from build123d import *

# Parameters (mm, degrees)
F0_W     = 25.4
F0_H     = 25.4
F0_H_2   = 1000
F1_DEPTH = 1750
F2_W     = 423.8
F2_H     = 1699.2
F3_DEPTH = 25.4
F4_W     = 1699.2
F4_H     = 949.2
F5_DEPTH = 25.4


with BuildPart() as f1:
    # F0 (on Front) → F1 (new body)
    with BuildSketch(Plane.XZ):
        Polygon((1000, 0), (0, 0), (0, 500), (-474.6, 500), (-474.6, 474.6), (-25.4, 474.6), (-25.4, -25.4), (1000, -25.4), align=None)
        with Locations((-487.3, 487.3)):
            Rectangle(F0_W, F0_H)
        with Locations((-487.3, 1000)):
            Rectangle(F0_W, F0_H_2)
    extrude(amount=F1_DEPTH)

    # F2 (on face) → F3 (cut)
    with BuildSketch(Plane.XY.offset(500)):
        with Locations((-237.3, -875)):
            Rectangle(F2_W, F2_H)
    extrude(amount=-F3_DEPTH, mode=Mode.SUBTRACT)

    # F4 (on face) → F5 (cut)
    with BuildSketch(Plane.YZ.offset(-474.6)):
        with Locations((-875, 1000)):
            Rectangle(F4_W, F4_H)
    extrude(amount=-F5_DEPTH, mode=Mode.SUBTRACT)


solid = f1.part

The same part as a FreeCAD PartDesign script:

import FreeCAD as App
import Part
import Sketcher

doc = App.newDocument("Part")
params = doc.addObject("Spreadsheet::Sheet", "Params")
for row, (alias, value) in enumerate([
    ("sketch1_width", "1000 mm"),
    ("sketch1_height", "500 mm"),
    ("sketch1_width2", "474.6 mm"),
    ("sketch1_width3", "25.4 mm"),
    ("pad1_length", "1750 mm"),
    ("sketch2_width", "423.8 mm"),
    ("sketch2_height", "1699.2 mm"),
    ("pocket1_length", "25.4 mm"),
    ("sketch3_width", "1699.2 mm"),
    ("sketch3_height", "949.2 mm"),
    ("pocket2_length", "25.4 mm"),
], start=1):
    params.set(f"A{row}", alias)
    params.set(f"B{row}", "=" + value)
    params.setAlias(f"B{row}", alias)

body = doc.addObject("PartDesign::Body", "Body")

sketch1 = body.newObject("Sketcher::SketchObject", "Sketch")
sketch1.AttachmentSupport = (doc.getObject("XZ_Plane"), [""])
sketch1.MapMode = "FlatFace"
sketch1.addGeometry([
    Part.LineSegment(App.Vector(1000, 0, 0), App.Vector(0, 0, 0)),
    Part.LineSegment(App.Vector(0, 0, 0), App.Vector(0, 500, 0)),
    Part.LineSegment(App.Vector(0, 500, 0), App.Vector(-475, 500, 0)),
    Part.LineSegment(App.Vector(-475, 500, 0), App.Vector(-475, 1500, 0)),
    Part.LineSegment(App.Vector(-475, 1500, 0), App.Vector(-500, 1500, 0)),
    Part.LineSegment(App.Vector(-500, 1500, 0), App.Vector(-500, 475, 0)),
    Part.LineSegment(App.Vector(-500, 475, 0), App.Vector(-25, 475, 0)),
    Part.LineSegment(App.Vector(-25, 475, 0), App.Vector(-25, -25, 0)),
    Part.LineSegment(App.Vector(-25, -25, 0), App.Vector(1000, -25, 0)),
    Part.LineSegment(App.Vector(1000, -25, 0), App.Vector(1000, 0, 0)),
], False)
sketch1.addConstraint([
    Sketcher.Constraint("Coincident", 0, 2, 1, 1),
    Sketcher.Constraint("Coincident", 1, 2, 2, 1),
    Sketcher.Constraint("Coincident", 2, 2, 3, 1),
    Sketcher.Constraint("Coincident", 3, 2, 4, 1),
    Sketcher.Constraint("Coincident", 4, 2, 5, 1),
    Sketcher.Constraint("Coincident", 5, 2, 6, 1),
    Sketcher.Constraint("Coincident", 6, 2, 7, 1),
    Sketcher.Constraint("Coincident", 7, 2, 8, 1),
    Sketcher.Constraint("Coincident", 8, 2, 9, 1),
    Sketcher.Constraint("Coincident", 9, 2, 0, 1),
    Sketcher.Constraint("Horizontal", 0),
    Sketcher.Constraint("Vertical", 1),
    Sketcher.Constraint("Horizontal", 2),
    Sketcher.Constraint("Vertical", 3),
    Sketcher.Constraint("Horizontal", 4),
    Sketcher.Constraint("Vertical", 5),
    Sketcher.Constraint("Horizontal", 6),
    Sketcher.Constraint("Vertical", 7),
    Sketcher.Constraint("Horizontal", 8),
    Sketcher.Constraint("Vertical", 9),
    Sketcher.Constraint("Coincident", 0, 2, -1, 1),
    Sketcher.Constraint("Equal", 2, 6),
    Sketcher.Constraint("Equal", 0, 3),
    Sketcher.Constraint("Equal", 8, 5),
    Sketcher.Constraint("Equal", 1, 7),
    Sketcher.Constraint("DistanceX", 0, 2, 0, 1, 1000.0),
    Sketcher.Constraint("DistanceY", 1, 1, 1, 2, 500.0),
    Sketcher.Constraint("DistanceX", 2, 2, 2, 1, 474.6),
    Sketcher.Constraint("DistanceX", 4, 2, 4, 1, 25.4),
])
sketch1.setExpression("Constraints[25]", "Params.sketch1_width")
sketch1.setExpression("Constraints[26]", "Params.sketch1_height")
sketch1.setExpression("Constraints[27]", "Params.sketch1_width2")
sketch1.setExpression("Constraints[28]", "Params.sketch1_width3")
pad1 = body.newObject("PartDesign::Pad", "Pad")
pad1.Profile = sketch1
pad1.setExpression("Length", "Params.pad1_length")

sketch2 = body.newObject("Sketcher::SketchObject", "Sketch001")
sketch2.AttachmentSupport = (doc.getObject("XY_Plane"), [""])
sketch2.MapMode = "FlatFace"
sketch2.AttachmentOffset = App.Placement(App.Vector(0, 0, 500), App.Rotation())
sketch2.addGeometry([
    Part.LineSegment(App.Vector(-449, -25, 0), App.Vector(-449, -1725, 0)),
    Part.LineSegment(App.Vector(-449, -1725, 0), App.Vector(-25, -1725, 0)),
    Part.LineSegment(App.Vector(-25, -1725, 0), App.Vector(-25, -25, 0)),
    Part.LineSegment(App.Vector(-25, -25, 0), App.Vector(-449, -25, 0)),
], False)
sketch2.addConstraint([
    Sketcher.Constraint("Coincident", 0, 2, 1, 1),
    Sketcher.Constraint("Coincident", 1, 2, 2, 1),
    Sketcher.Constraint("Coincident", 2, 2, 3, 1),
    Sketcher.Constraint("Coincident", 3, 2, 0, 1),
    Sketcher.Constraint("Vertical", 0),
    Sketcher.Constraint("Horizontal", 1),
    Sketcher.Constraint("Vertical", 2),
    Sketcher.Constraint("Horizontal", 3),
    Sketcher.Constraint("DistanceX", 1, 1, 1, 2, 423.8),
    Sketcher.Constraint("DistanceY", 0, 2, 0, 1, 1699.2),
    Sketcher.Constraint("DistanceX", 0, 2, -1, 1, 449.2),
    Sketcher.Constraint("DistanceY", 0, 2, -1, 1, 1724.6),
])
sketch2.setExpression("Constraints[8]", "Params.sketch2_width")
sketch2.setExpression("Constraints[9]", "Params.sketch2_height")
pocket1 = body.newObject("PartDesign::Pocket", "Pocket")
pocket1.Profile = sketch2
pocket1.setExpression("Length", "Params.pocket1_length")

sketch3 = body.newObject("Sketcher::SketchObject", "Sketch002")
sketch3.AttachmentSupport = (doc.getObject("YZ_Plane"), [""])
sketch3.MapMode = "FlatFace"
sketch3.AttachmentOffset = App.Placement(App.Vector(0, 0, -474.6), App.Rotation())
sketch3.addGeometry([
    Part.LineSegment(App.Vector(-1725, 1475, 0), App.Vector(-1725, 525, 0)),
    Part.LineSegment(App.Vector(-1725, 525, 0), App.Vector(-25, 525, 0)),
    Part.LineSegment(App.Vector(-25, 525, 0), App.Vector(-25, 1475, 0)),
    Part.LineSegment(App.Vector(-25, 1475, 0), App.Vector(-1725, 1475, 0)),
], False)
sketch3.addConstraint([
    Sketcher.Constraint("Coincident", 0, 2, 1, 1),
    Sketcher.Constraint("Coincident", 1, 2, 2, 1),
    Sketcher.Constraint("Coincident", 2, 2, 3, 1),
    Sketcher.Constraint("Coincident", 3, 2, 0, 1),
    Sketcher.Constraint("Vertical", 0),
    Sketcher.Constraint("Horizontal", 1),
    Sketcher.Constraint("Vertical", 2),
    Sketcher.Constraint("Horizontal", 3),
    Sketcher.Constraint("DistanceX", 1, 1, 1, 2, 1699.2),
    Sketcher.Constraint("DistanceY", 0, 2, 0, 1, 949.2),
    Sketcher.Constraint("DistanceX", 0, 2, -1, 1, 1724.6),
    Sketcher.Constraint("DistanceY", -1, 1, 0, 2, 525.4),
])
sketch3.setExpression("Constraints[8]", "Params.sketch3_width")
sketch3.setExpression("Constraints[9]", "Params.sketch3_height")
pocket2 = body.newObject("PartDesign::Pocket", "Pocket001")
pocket2.Profile = sketch3
pocket2.setExpression("Length", "Params.pocket2_length")

doc.recompute()
